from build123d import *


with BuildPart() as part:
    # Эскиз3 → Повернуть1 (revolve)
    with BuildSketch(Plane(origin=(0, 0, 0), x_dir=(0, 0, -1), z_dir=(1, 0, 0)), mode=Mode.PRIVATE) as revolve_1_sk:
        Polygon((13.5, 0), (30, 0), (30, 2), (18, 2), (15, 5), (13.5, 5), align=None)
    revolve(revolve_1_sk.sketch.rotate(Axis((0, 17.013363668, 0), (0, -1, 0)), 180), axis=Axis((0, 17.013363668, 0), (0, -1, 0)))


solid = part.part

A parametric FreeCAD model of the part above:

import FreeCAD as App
import Part
import Sketcher

V = App.Vector
Q = App.Units.Quantity

doc = App.newDocument("Part")
params = doc.addObject("Spreadsheet::Sheet", "Params")
for row, (alias, value) in enumerate([
    ("sketch1_width", "2 mm"),
    ("sketch1_width2", "5 mm"),
    ("sketch1_height", "12 mm"),
    ("sketch1_height2", "16.5 mm"),
    ("revolution_angle", "360 deg"),
], start=1):
    params.set(f"A{row}", alias)
    params.set(f"B{row}", "=" + value)
    params.setAlias(f"B{row}", alias)

body = doc.addObject("PartDesign::Body", "Body")

# Sketch on YZ plane
sketch1 = doc.addObject("Sketcher::SketchObject", "Sketch")
body.addObject(sketch1)
sketch1.AttachmentSupport = (doc.YZ_Plane, [""])
sketch1.MapMode = "FlatFace"
sketch1.addGeometry(Part.LineSegment(V(0, -13.5, 0), V(0, -30, 0)), False)
sketch1.addGeometry(Part.LineSegment(V(0, -30, 0), V(2, -30, 0)), False)
sketch1.addGeometry(Part.LineSegment(V(2, -30, 0), V(2, -18, 0)), False)
sketch1.addGeometry(Part.LineSegment(V(2, -18, 0), V(5, -15, 0)), False)
sketch1.addGeometry(Part.LineSegment(V(5, -15, 0), V(5, -13.5, 0)), False)
sketch1.addGeometry(Part.LineSegment(V(5, -13.5, 0), V(0, -13.5, 0)), False)
sketch1.addConstraint(Sketcher.Constraint("Coincident", 0, 2, 1, 1))
sketch1.addConstraint(Sketcher.Constraint("Coincident", 1, 2, 2, 1))
sketch1.addConstraint(Sketcher.Constraint("Coincident", 2, 2, 3, 1))
sketch1.addConstraint(Sketcher.Constraint("Coincident", 3, 2, 4, 1))
sketch1.addConstraint(Sketcher.Constraint("Coincident", 4, 2, 5, 1))
sketch1.addConstraint(Sketcher.Constraint("Coincident", 5, 2, 0, 1))
sketch1.addConstraint(Sketcher.Constraint("Vertical", 0))
sketch1.addConstraint(Sketcher.Constraint("Horizontal", 1))
sketch1.addConstraint(Sketcher.Constraint("Vertical", 2))
sketch1.addConstraint(Sketcher.Constraint("Vertical", 4))
sketch1.addConstraint(Sketcher.Constraint("Horizontal", 5))
sketch1.addConstraint(Sketcher.Constraint("PointOnObject", 0, 2, -2))
sketch1.addConstraint(Sketcher.Constraint("DistanceX", 1, 1, 1, 2, Q("2 mm")))
sketch1.addConstraint(Sketcher.Constraint("DistanceX", 5, 2, 5, 1, Q("5 mm")))
sketch1.addConstraint(Sketcher.Constraint("DistanceY", 2, 1, 2, 2, Q("12 mm")))
sketch1.addConstraint(Sketcher.Constraint("Angle", 3, Q("45 deg")))
sketch1.addConstraint(Sketcher.Constraint("DistanceY", 0, 2, 0, 1, Q("16.5 mm")))
sketch1.addConstraint(Sketcher.Constraint("DistanceY", 0, 2, -1, 1, Q("30 mm")))
sketch1.setExpression("Constraints[12]", "Params.sketch1_width")
sketch1.setExpression("Constraints[13]", "Params.sketch1_width2")
sketch1.setExpression("Constraints[14]", "Params.sketch1_height")
sketch1.setExpression("Constraints[16]", "Params.sketch1_height2")
revolution = doc.addObject("PartDesign::Revolution", "Revolution")
body.addObject(revolution)
revolution.Profile = sketch1
revolution.ReferenceAxis = (sketch1, ["H_Axis"])
revolution.setExpression("Angle", "Params.revolution_angle")

doc.recompute()
